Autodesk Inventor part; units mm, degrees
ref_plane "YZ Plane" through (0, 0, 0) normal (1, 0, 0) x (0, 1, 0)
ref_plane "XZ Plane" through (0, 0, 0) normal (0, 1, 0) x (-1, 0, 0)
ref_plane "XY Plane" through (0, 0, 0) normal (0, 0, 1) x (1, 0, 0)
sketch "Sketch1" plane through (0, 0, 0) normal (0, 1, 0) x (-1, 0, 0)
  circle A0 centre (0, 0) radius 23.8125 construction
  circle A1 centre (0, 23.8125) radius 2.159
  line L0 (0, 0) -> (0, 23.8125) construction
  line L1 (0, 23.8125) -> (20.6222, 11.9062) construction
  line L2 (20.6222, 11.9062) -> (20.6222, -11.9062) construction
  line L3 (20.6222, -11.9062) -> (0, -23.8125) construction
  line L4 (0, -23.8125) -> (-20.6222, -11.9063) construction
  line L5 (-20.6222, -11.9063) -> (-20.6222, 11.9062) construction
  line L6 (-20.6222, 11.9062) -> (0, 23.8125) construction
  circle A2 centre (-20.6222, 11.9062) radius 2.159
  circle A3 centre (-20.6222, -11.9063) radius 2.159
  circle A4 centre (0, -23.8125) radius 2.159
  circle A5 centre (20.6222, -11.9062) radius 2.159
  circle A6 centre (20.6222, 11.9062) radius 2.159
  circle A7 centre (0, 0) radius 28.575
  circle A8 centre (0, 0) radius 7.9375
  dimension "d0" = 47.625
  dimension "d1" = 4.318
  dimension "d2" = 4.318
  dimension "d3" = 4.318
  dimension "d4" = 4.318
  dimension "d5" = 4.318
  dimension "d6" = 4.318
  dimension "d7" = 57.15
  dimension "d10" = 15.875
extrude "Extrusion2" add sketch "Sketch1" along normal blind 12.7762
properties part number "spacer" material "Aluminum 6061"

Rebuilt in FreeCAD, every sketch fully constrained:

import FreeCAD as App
import Part
import Sketcher
from FreeCAD import Vector
Q = App.Units.Quantity

doc = App.newDocument("Part")
body = doc.addObject("PartDesign::Body", "Body")

# Sketch on XZ plane
sketch1 = body.newObject("Sketcher::SketchObject", "Sketch")
sketch1.AttachmentSupport = (doc.getObject("XZ_Plane"), [""])
sketch1.MapMode = "FlatFace"
sketch1.addGeometry([
    Part.Circle(Vector(0, 0, 0), Vector(0, 0, 1), 28.575),  # 0
    Part.Circle(Vector(20.6222, -11.9063, 0), Vector(0, 0, 1), 2.159),  # 1
    Part.Circle(Vector(0, -23.8125, 0), Vector(0, 0, 1), 2.159),  # 2
    Part.Circle(Vector(-20.6222, -11.9062, 0), Vector(0, 0, 1), 2.159),  # 3
    Part.Circle(Vector(20.6222, 11.9062, 0), Vector(0, 0, 1), 2.159),  # 4
    Part.Circle(Vector(0, 0, 0), Vector(0, 0, 1), 7.9375),  # 5
    Part.Circle(Vector(-20.6222, 11.9062, 0), Vector(0, 0, 1), 2.159),  # 6
    Part.Circle(Vector(0, 23.8125, 0), Vector(0, 0, 1), 2.159),  # 7
], False)
sketch1.addConstraint([
    Sketcher.Constraint("Coincident", 0, 3, -1, 1),
    Sketcher.Constraint("Coincident", 5, 3, -1, 1),
    Sketcher.Constraint("Equal", 1, 2),
    Sketcher.Constraint("Equal", 2, 3),
    Sketcher.Constraint("Equal", 3, 4),
    Sketcher.Constraint("Equal", 4, 6),
    Sketcher.Constraint("Equal", 6, 7),
    Sketcher.Constraint("Symmetric", 3, 3, 4, 3, -1, 1),
    Sketcher.Constraint("Symmetric", 1, 3, 6, 3, -1, 1),
    Sketcher.Constraint("Symmetric", 2, 3, 7, 3, -1, 1),
    Sketcher.Constraint("Symmetric", 1, 3, 3, 3, -2),
    Sketcher.Constraint("PointOnObject", 2, 3, -2),
    Sketcher.Constraint("Diameter", 0, Q("2.25 in")),
    Sketcher.Constraint("Diameter", 1, Q("0.17 in")),
    Sketcher.Constraint("Diameter", 5, Q("0.625 in")),
    Sketcher.Constraint("DistanceY", 1, 3, -1, 1, Q("0.468752 in")),
    Sketcher.Constraint("DistanceY", 2, 3, -1, 1, Q("0.9375 in")),
    Sketcher.Constraint("DistanceX", -1, 1, 1, 3, Q("0.8119 in")),
])
pad1 = body.newObject("PartDesign::Pad", "Pad")
pad1.Profile = sketch1
pad1.Length = Q("0.503 in")
pad1.Reversed = True

doc.recompute()
